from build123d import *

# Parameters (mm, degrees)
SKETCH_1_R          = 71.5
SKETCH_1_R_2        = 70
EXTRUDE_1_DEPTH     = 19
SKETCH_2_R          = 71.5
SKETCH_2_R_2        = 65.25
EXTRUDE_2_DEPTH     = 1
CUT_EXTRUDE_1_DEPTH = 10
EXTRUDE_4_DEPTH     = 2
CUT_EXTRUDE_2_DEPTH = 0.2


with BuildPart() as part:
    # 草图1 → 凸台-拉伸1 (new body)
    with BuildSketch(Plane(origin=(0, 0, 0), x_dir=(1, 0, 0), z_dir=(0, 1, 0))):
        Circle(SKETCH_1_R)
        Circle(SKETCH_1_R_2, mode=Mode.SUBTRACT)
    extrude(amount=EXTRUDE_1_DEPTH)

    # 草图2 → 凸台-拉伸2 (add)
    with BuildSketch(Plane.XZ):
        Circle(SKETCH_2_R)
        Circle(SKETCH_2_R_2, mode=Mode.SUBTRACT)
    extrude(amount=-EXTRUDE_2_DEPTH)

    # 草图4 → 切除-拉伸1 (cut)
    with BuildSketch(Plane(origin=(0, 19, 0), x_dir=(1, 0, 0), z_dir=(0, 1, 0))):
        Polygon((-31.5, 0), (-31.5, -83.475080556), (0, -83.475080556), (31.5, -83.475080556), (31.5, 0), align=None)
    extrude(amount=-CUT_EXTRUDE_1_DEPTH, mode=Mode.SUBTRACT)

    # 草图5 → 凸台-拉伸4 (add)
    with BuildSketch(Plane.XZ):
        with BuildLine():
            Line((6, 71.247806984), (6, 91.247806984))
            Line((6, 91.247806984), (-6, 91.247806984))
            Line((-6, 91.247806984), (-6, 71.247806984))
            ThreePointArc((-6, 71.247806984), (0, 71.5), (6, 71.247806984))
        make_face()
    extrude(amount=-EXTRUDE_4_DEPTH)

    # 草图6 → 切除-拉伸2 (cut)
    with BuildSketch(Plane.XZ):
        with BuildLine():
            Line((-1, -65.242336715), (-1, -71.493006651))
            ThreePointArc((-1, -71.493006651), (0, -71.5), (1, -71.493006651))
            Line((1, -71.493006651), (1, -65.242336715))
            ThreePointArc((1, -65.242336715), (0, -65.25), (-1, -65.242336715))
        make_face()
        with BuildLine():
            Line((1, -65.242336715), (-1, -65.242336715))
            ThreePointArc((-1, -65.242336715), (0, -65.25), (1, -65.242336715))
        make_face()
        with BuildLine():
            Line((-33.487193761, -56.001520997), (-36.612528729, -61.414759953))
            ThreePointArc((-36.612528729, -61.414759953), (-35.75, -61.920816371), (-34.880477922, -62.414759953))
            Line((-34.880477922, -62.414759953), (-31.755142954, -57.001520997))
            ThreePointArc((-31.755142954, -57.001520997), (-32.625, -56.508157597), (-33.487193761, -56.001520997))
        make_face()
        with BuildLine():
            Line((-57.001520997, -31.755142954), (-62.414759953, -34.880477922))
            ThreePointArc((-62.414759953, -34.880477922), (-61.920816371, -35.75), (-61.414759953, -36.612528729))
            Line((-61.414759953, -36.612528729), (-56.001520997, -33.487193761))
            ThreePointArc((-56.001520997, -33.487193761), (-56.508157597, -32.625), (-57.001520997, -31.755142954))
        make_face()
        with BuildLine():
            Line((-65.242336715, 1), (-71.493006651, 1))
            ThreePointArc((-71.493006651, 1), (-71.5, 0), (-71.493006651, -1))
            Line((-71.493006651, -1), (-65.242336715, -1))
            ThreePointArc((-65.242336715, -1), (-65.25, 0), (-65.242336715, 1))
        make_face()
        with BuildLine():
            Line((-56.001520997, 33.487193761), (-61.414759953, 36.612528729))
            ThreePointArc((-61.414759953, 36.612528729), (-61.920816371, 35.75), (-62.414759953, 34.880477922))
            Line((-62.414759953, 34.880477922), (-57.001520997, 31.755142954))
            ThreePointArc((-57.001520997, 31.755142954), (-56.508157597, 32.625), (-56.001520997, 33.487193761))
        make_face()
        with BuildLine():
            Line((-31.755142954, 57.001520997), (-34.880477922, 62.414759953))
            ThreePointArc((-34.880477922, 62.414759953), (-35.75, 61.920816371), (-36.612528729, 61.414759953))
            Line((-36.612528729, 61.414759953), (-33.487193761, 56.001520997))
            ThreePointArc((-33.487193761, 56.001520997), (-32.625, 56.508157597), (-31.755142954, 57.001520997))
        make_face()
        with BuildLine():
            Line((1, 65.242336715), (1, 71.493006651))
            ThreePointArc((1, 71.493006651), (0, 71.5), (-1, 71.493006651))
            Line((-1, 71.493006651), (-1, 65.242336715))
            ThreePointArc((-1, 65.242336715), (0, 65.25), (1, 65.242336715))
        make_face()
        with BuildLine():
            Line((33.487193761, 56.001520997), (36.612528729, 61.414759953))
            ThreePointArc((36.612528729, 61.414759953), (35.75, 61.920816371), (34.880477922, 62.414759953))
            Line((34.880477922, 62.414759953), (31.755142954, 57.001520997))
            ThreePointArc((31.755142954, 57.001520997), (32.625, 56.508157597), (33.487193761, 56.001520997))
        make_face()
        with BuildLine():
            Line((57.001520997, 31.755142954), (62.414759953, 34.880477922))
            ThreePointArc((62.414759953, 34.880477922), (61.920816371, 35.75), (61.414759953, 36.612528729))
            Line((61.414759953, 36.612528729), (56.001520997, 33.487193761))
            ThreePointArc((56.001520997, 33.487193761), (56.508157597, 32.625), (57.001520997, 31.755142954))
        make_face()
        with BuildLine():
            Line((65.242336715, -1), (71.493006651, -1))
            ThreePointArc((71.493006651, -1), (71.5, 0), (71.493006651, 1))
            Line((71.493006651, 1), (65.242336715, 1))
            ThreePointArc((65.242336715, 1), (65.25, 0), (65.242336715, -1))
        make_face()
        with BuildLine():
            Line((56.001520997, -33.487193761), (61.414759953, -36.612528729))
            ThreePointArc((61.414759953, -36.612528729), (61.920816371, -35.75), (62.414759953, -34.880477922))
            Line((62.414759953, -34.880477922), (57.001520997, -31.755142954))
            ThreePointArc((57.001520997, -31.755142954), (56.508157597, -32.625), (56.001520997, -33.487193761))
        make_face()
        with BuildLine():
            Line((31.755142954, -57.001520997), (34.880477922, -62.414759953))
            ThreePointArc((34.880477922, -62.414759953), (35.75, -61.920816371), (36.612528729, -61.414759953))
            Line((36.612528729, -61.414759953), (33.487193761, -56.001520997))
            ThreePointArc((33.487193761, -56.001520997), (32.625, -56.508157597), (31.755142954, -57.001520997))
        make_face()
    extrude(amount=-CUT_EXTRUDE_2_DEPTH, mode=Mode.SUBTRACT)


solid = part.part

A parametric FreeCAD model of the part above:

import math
import FreeCAD as App
import Part
import Sketcher
from FreeCAD import Vector
Q = App.Units.Quantity

doc = App.newDocument("Part")
params = doc.addObject("Spreadsheet::Sheet", "Params")
for row, (alias, value) in enumerate([
    ("sketch1_diameter", "143 mm"),
    ("sketch1_diameter2", "140 mm"),
    ("pad1_length", "19 mm"),
    ("sketch2_diameter", "143 mm"),
    ("sketch2_diameter2", "130.5 mm"),
    ("pad2_length", "1 mm"),
    ("sketch3_width", "63 mm"),
    ("pocket1_length", "10 mm"),
    ("sketch4_radius", "71.5 mm"),
    ("sketch4_width", "12 mm"),
    ("sketch4_height", "20 mm"),
    ("pad3_length", "2 mm"),
    ("sketch5_radius", "71.5 mm"),
    ("sketch5_width", "2 mm"),
    ("sketch5_radius2", "65.249998 mm"),
    ("pocket2_length", "0.2 mm"),
], start=1):
    params.set(f"A{row}", alias)
    params.set(f"B{row}", "=" + value)
    params.setAlias(f"B{row}", alias)

body = doc.addObject("PartDesign::Body", "Body")

# Sketch on XZ plane
sketch1 = body.newObject("Sketcher::SketchObject", "Sketch")
sketch1.AttachmentSupport = (doc.getObject("XZ_Plane"), [""])
sketch1.MapMode = "FlatFace"
sketch1.addGeometry([
    Part.Circle(Vector(0, 0, 0), Vector(0, 0, 1), 71.5),
    Part.Circle(Vector(0, 0, 0), Vector(0, 0, 1), 70),
], False)
sketch1.addConstraint([
    Sketcher.Constraint("Coincident", 0, 3, -1, 1),
    Sketcher.Constraint("Coincident", 1, 3, -1, 1),
    Sketcher.Constraint("Diameter", 0, 143.0),
    Sketcher.Constraint("Diameter", 1, 140.0),
])
sketch1.setExpression("Constraints[2]", "Params.sketch1_diameter")
sketch1.setExpression("Constraints[3]", "Params.sketch1_diameter2")
pad1 = body.newObject("PartDesign::Pad", "Pad")
pad1.Profile = sketch1
pad1.setExpression("Length", "Params.pad1_length")
pad1.Reversed = True

# Sketch on XZ plane
sketch2 = body.newObject("Sketcher::SketchObject", "Sketch001")
sketch2.AttachmentSupport = (doc.getObject("XZ_Plane"), [""])
sketch2.MapMode = "FlatFace"
sketch2.addGeometry([
    Part.Circle(Vector(0, 0, 0), Vector(0, 0, 1), 71.5),
    Part.Circle(Vector(0, 0, 0), Vector(0, 0, 1), 65.25),
], False)
sketch2.addConstraint([
    Sketcher.Constraint("Coincident", 0, 3, -1, 1),
    Sketcher.Constraint("Coincident", 1, 3, -1, 1),
    Sketcher.Constraint("Diameter", 0, 143.0),
    Sketcher.Constraint("Diameter", 1, 130.5),
])
sketch2.setExpression("Constraints[2]", "Params.sketch2_diameter")
sketch2.setExpression("Constraints[3]", "Params.sketch2_diameter2")
pad2 = body.newObject("PartDesign::Pad", "Pad001")
pad2.Profile = sketch2
pad2.setExpression("Length", "Params.pad2_length")
pad2.Reversed = True

# Sketch on XZ plane
sketch3 = body.newObject("Sketcher::SketchObject", "Sketch002")
sketch3.AttachmentSupport = (doc.getObject("XZ_Plane"), [""])
sketch3.MapMode = "FlatFace"
sketch3.AttachmentOffset = App.Placement(Vector(0, 0, -19), App.Rotation())
sketch3.addGeometry([
    Part.LineSegment(Vector(-31.5, 0, 0), Vector(-31.5, 83.475081, 0)),
    Part.LineSegment(Vector(-31.5, 83.475081, 0), Vector(31.5, 83.475081, 0)),
    Part.LineSegment(Vector(31.5, 83.475081, 0), Vector(31.5, 0, 0)),
    Part.LineSegment(Vector(31.5, 0, 0), Vector(-31.5, 0, 0)),
], False)
sketch3.addConstraint([
    Sketcher.Constraint("Coincident", 0, 2, 1, 1),
    Sketcher.Constraint("Coincident", 1, 2, 2, 1),
    Sketcher.Constraint("Coincident", 2, 2, 3, 1),
    Sketcher.Constraint("Coincident", 3, 2, 0, 1),
    Sketcher.Constraint("Vertical", 0),
    Sketcher.Constraint("Horizontal", 1),
    Sketcher.Constraint("Vertical", 2),
    Sketcher.Constraint("Horizontal", 3),
    Sketcher.Constraint("Symmetric", 2, 2, 3, 2, -1, 1),
    Sketcher.Constraint("DistanceX", 1, 1, 1, 2, 63.0),
    Sketcher.Constraint("DistanceY", 0, 1, 0, 2, 83.475081),
])
sketch3.setExpression("Constraints[9]", "Params.sketch3_width")
pocket1 = body.newObject("PartDesign::Pocket", "Pocket")
pocket1.Profile = sketch3
pocket1.setExpression("Length", "Params.pocket1_length")
pocket1.Reversed = True

# Sketch on XZ plane
sketch4 = body.newObject("Sketcher::SketchObject", "Sketch003")
sketch4.AttachmentSupport = (doc.getObject("XZ_Plane"), [""])
sketch4.MapMode = "FlatFace"
sketch4.addGeometry([
    Part.LineSegment(Vector(6, 71.247807, 0), Vector(6, 91.247807, 0)),
    Part.LineSegment(Vector(6, 91.247807, 0), Vector(-6, 91.247807, 0)),
    Part.LineSegment(Vector(-6, 91.247807, 0), Vector(-6, 71.247807, 0)),
    Part.ArcOfCircle(Part.Circle(Vector(0, 0, 0), Vector(0, 0, 1), 71.5), math.radians(85.186302), math.radians(94.813698)),
], False)
sketch4.addConstraint([
    Sketcher.Constraint("Coincident", 0, 2, 1, 1),
    Sketcher.Constraint("Coincident", 1, 2, 2, 1),
    Sketcher.Constraint("Coincident", 2, 2, 3, 2),
    Sketcher.Constraint("Coincident", 3, 1, 0, 1),
    Sketcher.Constraint("Vertical", 0),
    Sketcher.Constraint("Horizontal", 1),
    Sketcher.Constraint("Vertical", 2),
    Sketcher.Constraint("Coincident", 3, 3, -1, 1),
    Sketcher.Constraint("Horizontal", 2, 2, 3, 1),
    Sketcher.Constraint("Radius", 3, 71.5),
    Sketcher.Constraint("DistanceX", 1, 2, 1, 1, 12.0),
    Sketcher.Constraint("DistanceY", 0, 1, 0, 2, 20.0),
])
sketch4.setExpression("Constraints[9]", "Params.sketch4_radius")
sketch4.setExpression("Constraints[10]", "Params.sketch4_width")
sketch4.setExpression("Constraints[11]", "Params.sketch4_height")
pad3 = body.newObject("PartDesign::Pad", "Pad002")
pad3.Profile = sketch4
pad3.setExpression("Length", "Params.pad3_length")
pad3.Reversed = True

# Sketch on XZ plane
sketch5 = body.newObject("Sketcher::SketchObject", "Sketch004")
sketch5.AttachmentSupport = (doc.getObject("XZ_Plane"), [""])
sketch5.MapMode = "FlatFace"
sketch5.addGeometry([
    Part.LineSegment(Vector(-1, -65.242337, 0), Vector(-1, -71.493007, 0)),  # 0
    Part.ArcOfCircle(Part.Circle(Vector(0, 0, 0), Vector(0, 0, 1), 71.5), math.radians(-90.801366), math.radians(-89.198634)),  # 1
    Part.LineSegment(Vector(1, -71.493007, 0), Vector(1, -65.242337, 0)),  # 2
    Part.LineSegment(Vector(1, -65.242337, 0), Vector(-1, -65.242337, 0)),  # 3
    Part.LineSegment(Vector(-33.487194, -56.001521, 0), Vector(-36.612529, -61.41476, 0)),  # 4
    Part.ArcOfCircle(Part.Circle(Vector(0, -0.000001, 0), Vector(0, 0, 1), 71.499999), math.radians(-120.801366), math.radians(-119.198634)),  # 5
    Part.LineSegment(Vector(-34.880478, -62.41476, 0), Vector(-31.755143, -57.001521, 0)),  # 6
    Part.ArcOfCircle(Part.Circle(Vector(-0.000001, -0.000001, 0), Vector(0, 0, 1), 65.249998), math.radians(-120.878131), math.radians(-119.121869)),  # 7
    Part.LineSegment(Vector(-57.001521, -31.755143, 0), Vector(-62.41476, -34.880478, 0)),  # 8
    Part.ArcOfCircle(Part.Circle(Vector(-0.000001, 0, 0), Vector(0, 0, 1), 71.499999), math.radians(-150.801366), math.radians(-149.198634)),  # 9
    Part.LineSegment(Vector(-61.41476, -36.612529, 0), Vector(-56.001521, -33.487194, 0)),  # 10
    Part.ArcOfCircle(Part.Circle(Vector(-0.000001, -0.000001, 0), Vector(0, 0, 1), 65.249998), math.radians(-150.878131), math.radians(-149.121869)),  # 11
    Part.LineSegment(Vector(-65.242337, 1, 0), Vector(-71.493007, 1, 0)),  # 12
    Part.ArcOfCircle(Part.Circle(Vector(0, 0, 0), Vector(0, 0, 1), 71.5), math.radians(179.198634), math.radians(180.801366)),  # 13
    Part.LineSegment(Vector(-71.493007, -1, 0), Vector(-65.242337, -1, 0)),  # 14
    Part.ArcOfCircle(Part.Circle(Vector(0.000002, 0, 0), Vector(0, 0, 1), 65.250002), math.radians(179.121869), math.radians(180.878131)),  # 15
    Part.LineSegment(Vector(-56.001521, 33.487194, 0), Vector(-61.41476, 36.612529, 0)),  # 16
    Part.ArcOfCircle(Part.Circle(Vector(-0.000001, 0, 0), Vector(0, 0, 1), 71.499999), math.radians(149.198634), math.radians(150.801366)),  # 17
    Part.LineSegment(Vector(-62.41476, 34.880478, 0), Vector(-57.001521, 31.755143, 0)),  # 18
    Part.ArcOfCircle(Part.Circle(Vector(-0.000001, 0.000001, 0), Vector(0, 0, 1), 65.249998), math.radians(149.121869), math.radians(150.878131)),  # 19
    Part.LineSegment(Vector(-31.755143, 57.001521, 0), Vector(-34.880478, 62.41476, 0)),  # 20
    Part.ArcOfCircle(Part.Circle(Vector(0, 0.000001, 0), Vector(0, 0, 1), 71.499999), math.radians(119.198634), math.radians(120.801366)),  # 21
    Part.LineSegment(Vector(-36.612529, 61.41476, 0), Vector(-33.487194, 56.001521, 0)),  # 22
    Part.ArcOfCircle(Part.Circle(Vector(-0.000001, 0.000001, 0), Vector(0, 0, 1), 65.249998), math.radians(119.121869), math.radians(120.878131)),  # 23
    Part.LineSegment(Vector(1, 65.242337, 0), Vector(1, 71.493007, 0)),  # 24
    Part.ArcOfCircle(Part.Circle(Vector(0, 0, 0), Vector(0, 0, 1), 71.5), math.radians(89.198634), math.radians(90.801366)),  # 25
    Part.LineSegment(Vector(-1, 71.493007, 0), Vector(-1, 65.242337, 0)),  # 26
    Part.ArcOfCircle(Part.Circle(Vector(0, -0.000002, 0), Vector(0, 0, 1), 65.250002), math.radians(89.121869), math.radians(90.878131)),  # 27
    Part.LineSegment(Vector(33.487194, 56.001521, 0), Vector(36.612529, 61.41476, 0)),  # 28
    Part.ArcOfCircle(Part.Circle(Vector(0, 0.000001, 0), Vector(0, 0, 1), 71.499999), math.radians(59.198634), math.radians(60.801366)),  # 29
    Part.LineSegment(Vector(34.880478, 62.41476, 0), Vector(31.755143, 57.001521, 0)),  # 30
    Part.ArcOfCircle(Part.Circle(Vector(0.000001, 0.000001, 0), Vector(0, 0, 1), 65.249998), math.radians(59.121869), math.radians(60.878131)),  # 31
    Part.LineSegment(Vector(57.001521, 31.755143, 0), Vector(62.41476, 34.880478, 0)),  # 32
    Part.ArcOfCircle(Part.Circle(Vector(0.000001, 0, 0), Vector(0, 0, 1), 71.499999), math.radians(29.198634), math.radians(30.801366)),  # 33
    Part.LineSegment(Vector(61.41476, 36.612529, 0), Vector(56.001521, 33.487194, 0)),  # 34
    Part.ArcOfCircle(Part.Circle(Vector(0.000001, 0.000001, 0), Vector(0, 0, 1), 65.249998), math.radians(29.121869), math.radians(30.878131)),  # 35
    Part.LineSegment(Vector(65.242337, -1, 0), Vector(71.493007, -1, 0)),  # 36
    Part.ArcOfCircle(Part.Circle(Vector(0, 0, 0), Vector(0, 0, 1), 71.5), math.radians(-0.801366), math.radians(0.801366)),  # 37
    Part.LineSegment(Vector(71.493007, 1, 0), Vector(65.242337, 1, 0)),  # 38
    Part.ArcOfCircle(Part.Circle(Vector(-0.000002, 0, 0), Vector(0, 0, 1), 65.250002), math.radians(-0.878131), math.radians(0.878131)),  # 39
    Part.LineSegment(Vector(56.001521, -33.487194, 0), Vector(61.41476, -36.612529, 0)),  # 40
    Part.ArcOfCircle(Part.Circle(Vector(0.000001, 0, 0), Vector(0, 0, 1), 71.499999), math.radians(-30.801366), math.radians(-29.198634)),  # 41
    Part.LineSegment(Vector(62.41476, -34.880478, 0), Vector(57.001521, -31.755143, 0)),  # 42
    Part.ArcOfCircle(Part.Circle(Vector(0.000001, -0.000001, 0), Vector(0, 0, 1), 65.249998), math.radians(-30.878131), math.radians(-29.121869)),  # 43
    Part.LineSegment(Vector(31.755143, -57.001521, 0), Vector(34.880478, -62.41476, 0)),  # 44
    Part.ArcOfCircle(Part.Circle(Vector(0, -0.000001, 0), Vector(0, 0, 1), 71.499999), math.radians(-60.801366), math.radians(-59.198634)),  # 45
    Part.LineSegment(Vector(36.612529, -61.41476, 0), Vector(33.487194, -56.001521, 0)),  # 46
    Part.ArcOfCircle(Part.Circle(Vector(0.000001, -0.000001, 0), Vector(0, 0, 1), 65.249998), math.radians(-60.878131), math.radians(-59.121869)),  # 47
], False)
sketch5.addConstraint([
    Sketcher.Constraint("Coincident", 0, 2, 1, 1),
    Sketcher.Constraint("Coincident", 1, 2, 2, 1),
    Sketcher.Constraint("Coincident", 2, 2, 3, 1),
    Sketcher.Constraint("Coincident", 3, 2, 0, 1),
    Sketcher.Constraint("Coincident", 4, 2, 5, 1),
    Sketcher.Constraint("Coincident", 5, 2, 6, 1),
    Sketcher.Constraint("Coincident", 6, 2, 7, 2),
    Sketcher.Constraint("Coincident", 7, 1, 4, 1),
    Sketcher.Constraint("Coincident", 8, 2, 9, 1),
    Sketcher.Constraint("Coincident", 9, 2, 10, 1),
    Sketcher.Constraint("Coincident", 10, 2, 11, 2),
    Sketcher.Constraint("Coincident", 11, 1, 8, 1),
    Sketcher.Constraint("Coincident", 12, 2, 13, 1),
    Sketcher.Constraint("Coincident", 13, 2, 14, 1),
    Sketcher.Constraint("Coincident", 14, 2, 15, 2),
    Sketcher.Constraint("Coincident", 15, 1, 12, 1),
    Sketcher.Constraint("Coincident", 16, 2, 17, 1),
    Sketcher.Constraint("Coincident", 17, 2, 18, 1),
    Sketcher.Constraint("Coincident", 18, 2, 19, 2),
    Sketcher.Constraint("Coincident", 19, 1, 16, 1),
    Sketcher.Constraint("Coincident", 20, 2, 21, 1),
    Sketcher.Constraint("Coincident", 21, 2, 22, 1),
    Sketcher.Constraint("Coincident", 22, 2, 23, 2),
    Sketcher.Constraint("Coincident", 23, 1, 20, 1),
    Sketcher.Constraint("Coincident", 24, 2, 25, 1),
    Sketcher.Constraint("Coincident", 25, 2, 26, 1),
    Sketcher.Constraint("Coincident", 26, 2, 27, 2),
    Sketcher.Constraint("Coincident", 27, 1, 24, 1),
    Sketcher.Constraint("Coincident", 28, 2, 29, 1),
    Sketcher.Constraint("Coincident", 29, 2, 30, 1),
    Sketcher.Constraint("Coincident", 30, 2, 31, 2),
    Sketcher.Constraint("Coincident", 31, 1, 28, 1),
    Sketcher.Constraint("Coincident", 32, 2, 33, 1),
    Sketcher.Constraint("Coincident", 33, 2, 34, 1),
    Sketcher.Constraint("Coincident", 34, 2, 35, 2),
    Sketcher.Constraint("Coincident", 35, 1, 32, 1),
    Sketcher.Constraint("Coincident", 36, 2, 37, 1),
    Sketcher.Constraint("Coincident", 37, 2, 38, 1),
    Sketcher.Constraint("Coincident", 38, 2, 39, 2),
    Sketcher.Constraint("Coincident", 39, 1, 36, 1),
    Sketcher.Constraint("Coincident", 40, 2, 41, 1),
    Sketcher.Constraint("Coincident", 41, 2, 42, 1),
    Sketcher.Constraint("Coincident", 42, 2, 43, 2),
    Sketcher.Constraint("Coincident", 43, 1, 40, 1),
    Sketcher.Constraint("Coincident", 44, 2, 45, 1),
    Sketcher.Constraint("Coincident", 45, 2, 46, 1),
    Sketcher.Constraint("Coincident", 46, 2, 47, 2),
    Sketcher.Constraint("Coincident", 47, 1, 44, 1),
    Sketcher.Constraint("Vertical", 0),
    Sketcher.Constraint("Vertical", 2),
    Sketcher.Constraint("Horizontal", 3),
    Sketcher.Constraint("Horizontal", 12),
    Sketcher.Constraint("Horizontal", 14),
    Sketcher.Constraint("Vertical", 24),
    Sketcher.Constraint("Vertical", 26),
    Sketcher.Constraint("Horizontal", 36),
    Sketcher.Constraint("Horizontal", 38),
    Sketcher.Constraint("Coincident", 1, 3, -1, 1),
    Sketcher.Constraint("Coincident", 5, 3, -1, 1),
    Sketcher.Constraint("Coincident", 7, 3, -1, 1),
    Sketcher.Constraint("Coincident", 9, 3, -1, 1),
    Sketcher.Constraint("Coincident", 11, 3, -1, 1),
    Sketcher.Constraint("Coincident", 13, 3, -1, 1),
    Sketcher.Constraint("Coincident", 15, 3, -1, 1),
    Sketcher.Constraint("Coincident", 17, 3, -1, 1),
    Sketcher.Constraint("Coincident", 19, 3, -1, 1),
    Sketcher.Constraint("Coincident", 21, 3, -1, 1),
    Sketcher.Constraint("Coincident", 23, 3, -1, 1),
    Sketcher.Constraint("Coincident", 25, 3, -1, 1),
    Sketcher.Constraint("Coincident", 27, 3, -1, 1),
    Sketcher.Constraint("Coincident", 29, 3, -1, 1),
    Sketcher.Constraint("Coincident", 31, 3, -1, 1),
    Sketcher.Constraint("Coincident", 33, 3, -1, 1),
    Sketcher.Constraint("Coincident", 35, 3, -1, 1),
    Sketcher.Constraint("Coincident", 37, 3, -1, 1),
    Sketcher.Constraint("Coincident", 39, 3, -1, 1),
    Sketcher.Constraint("Coincident", 41, 3, -1, 1),
    Sketcher.Constraint("Coincident", 43, 3, -1, 1),
    Sketcher.Constraint("Coincident", 45, 3, -1, 1),
    Sketcher.Constraint("Coincident", 47, 3, -1, 1),
    Sketcher.Constraint("Equal", 1, 5),
    Sketcher.Constraint("Equal", 5, 9),
    Sketcher.Constraint("Equal", 7, 11),
    Sketcher.Constraint("Equal", 9, 13),
    Sketcher.Constraint("Equal", 13, 17),
    Sketcher.Constraint("Equal", 11, 19),
    Sketcher.Constraint("Equal", 17, 21),
    Sketcher.Constraint("Equal", 19, 23),
    Sketcher.Constraint("Equal", 21, 25),
    Sketcher.Constraint("Equal", 15, 27),
    Sketcher.Constraint("Equal", 25, 29),
    Sketcher.Constraint("Equal", 23, 31),
    Sketcher.Constraint("Equal", 29, 33),
    Sketcher.Constraint("Equal", 31, 35),
    Sketcher.Constraint("Equal", 33, 37),
    Sketcher.Constraint("Equal", 27, 39),
    Sketcher.Constraint("Equal", 37, 41),
    Sketcher.Constraint("Equal", 35, 43),
    Sketcher.Constraint("Equal", 41, 45),
    Sketcher.Constraint("Equal", 43, 47),
    Sketcher.Constraint("Symmetric", 2, 2, 26, 2, -1, 1),
    Sketcher.Constraint("Symmetric", 3, 2, 27, 1, -1, 1),
    Sketcher.Constraint("Parallel", 4, 6),
    Sketcher.Constraint("Parallel", 8, 10),
    Sketcher.Constraint("Perpendicular", 6, 16),
    Sketcher.Constraint("Parallel", 16, 18),
    Sketcher.Constraint("Perpendicular", 10, 20),
    Sketcher.Constraint("Parallel", 20, 22),
    Sketcher.Constraint("Perpendicular", 18, 28),
    Sketcher.Constraint("Parallel", 28, 30),
    Sketcher.Constraint("Perpendicular", 22, 32),
    Sketcher.Constraint("Parallel", 32, 34),
    Sketcher.Constraint("Perpendicular", 30, 40),
    Sketcher.Constraint("Parallel", 40, 42),
    Sketcher.Constraint("Perpendicular", 34, 44),
    Sketcher.Constraint("Parallel", 44, 46),
    Sketcher.Constraint("Horizontal", 21, 2, 28, 2),
    Sketcher.Constraint("Horizontal", 20, 2, 29, 2),
    Sketcher.Constraint("Horizontal", 23, 1, 30, 2),
    Sketcher.Constraint("Horizontal", 17, 2, 32, 2),
    Sketcher.Constraint("Horizontal", 16, 2, 33, 2),
    Sketcher.Constraint("Horizontal", 14, 2, 36, 2),
    Sketcher.Constraint("Horizontal", 15, 1, 37, 2),
    Sketcher.Constraint("Horizontal", 9, 2, 40, 2),
    Sketcher.Constraint("Horizontal", 8, 2, 41, 2),
    Sketcher.Constraint("Horizontal", 5, 2, 44, 2),
    Sketcher.Constraint("Horizontal", 4, 2, 45, 2),
    Sketcher.Constraint("Vertical", 12, 2, 13, 2),
    Sketcher.Constraint("Vertical", 9, 2, 16, 2),
    Sketcher.Constraint("Vertical", 8, 2, 17, 2),
    Sketcher.Constraint("Vertical", 5, 2, 20, 2),
    Sketcher.Constraint("Vertical", 4, 2, 21, 2),
    Sketcher.Constraint("Equal", 4, 6),
    Sketcher.Constraint("Radius", 1, 71.5),
    Sketcher.Constraint("DistanceX", 3, 2, 3, 1, 2.0),
    Sketcher.Constraint("Angle", 4, Q("-120 deg")),
    Sketcher.Constraint("Radius", 7, 65.249998),
    Sketcher.Constraint("DistanceY", -1, 1, 12, 2, 1.0),
    Sketcher.Constraint("Radius", 15, 65.250002),
    Sketcher.Constraint("DistanceX", 4, 2, -1, 1, 36.612529),
    Sketcher.Constraint("DistanceX", 8, 2, -1, 1, 62.41476),
    Sketcher.Constraint("DistanceX", 9, 2, -1, 1, 61.41476),
])
sketch5.setExpression("Constraints[133]", "Params.sketch5_radius")
sketch5.setExpression("Constraints[134]", "Params.sketch5_width")
sketch5.setExpression("Constraints[136]", "Params.sketch5_radius2")
pocket2 = body.newObject("PartDesign::Pocket", "Pocket001")
pocket2.Profile = sketch5
pocket2.setExpression("Length", "Params.pocket2_length")

doc.recompute()
